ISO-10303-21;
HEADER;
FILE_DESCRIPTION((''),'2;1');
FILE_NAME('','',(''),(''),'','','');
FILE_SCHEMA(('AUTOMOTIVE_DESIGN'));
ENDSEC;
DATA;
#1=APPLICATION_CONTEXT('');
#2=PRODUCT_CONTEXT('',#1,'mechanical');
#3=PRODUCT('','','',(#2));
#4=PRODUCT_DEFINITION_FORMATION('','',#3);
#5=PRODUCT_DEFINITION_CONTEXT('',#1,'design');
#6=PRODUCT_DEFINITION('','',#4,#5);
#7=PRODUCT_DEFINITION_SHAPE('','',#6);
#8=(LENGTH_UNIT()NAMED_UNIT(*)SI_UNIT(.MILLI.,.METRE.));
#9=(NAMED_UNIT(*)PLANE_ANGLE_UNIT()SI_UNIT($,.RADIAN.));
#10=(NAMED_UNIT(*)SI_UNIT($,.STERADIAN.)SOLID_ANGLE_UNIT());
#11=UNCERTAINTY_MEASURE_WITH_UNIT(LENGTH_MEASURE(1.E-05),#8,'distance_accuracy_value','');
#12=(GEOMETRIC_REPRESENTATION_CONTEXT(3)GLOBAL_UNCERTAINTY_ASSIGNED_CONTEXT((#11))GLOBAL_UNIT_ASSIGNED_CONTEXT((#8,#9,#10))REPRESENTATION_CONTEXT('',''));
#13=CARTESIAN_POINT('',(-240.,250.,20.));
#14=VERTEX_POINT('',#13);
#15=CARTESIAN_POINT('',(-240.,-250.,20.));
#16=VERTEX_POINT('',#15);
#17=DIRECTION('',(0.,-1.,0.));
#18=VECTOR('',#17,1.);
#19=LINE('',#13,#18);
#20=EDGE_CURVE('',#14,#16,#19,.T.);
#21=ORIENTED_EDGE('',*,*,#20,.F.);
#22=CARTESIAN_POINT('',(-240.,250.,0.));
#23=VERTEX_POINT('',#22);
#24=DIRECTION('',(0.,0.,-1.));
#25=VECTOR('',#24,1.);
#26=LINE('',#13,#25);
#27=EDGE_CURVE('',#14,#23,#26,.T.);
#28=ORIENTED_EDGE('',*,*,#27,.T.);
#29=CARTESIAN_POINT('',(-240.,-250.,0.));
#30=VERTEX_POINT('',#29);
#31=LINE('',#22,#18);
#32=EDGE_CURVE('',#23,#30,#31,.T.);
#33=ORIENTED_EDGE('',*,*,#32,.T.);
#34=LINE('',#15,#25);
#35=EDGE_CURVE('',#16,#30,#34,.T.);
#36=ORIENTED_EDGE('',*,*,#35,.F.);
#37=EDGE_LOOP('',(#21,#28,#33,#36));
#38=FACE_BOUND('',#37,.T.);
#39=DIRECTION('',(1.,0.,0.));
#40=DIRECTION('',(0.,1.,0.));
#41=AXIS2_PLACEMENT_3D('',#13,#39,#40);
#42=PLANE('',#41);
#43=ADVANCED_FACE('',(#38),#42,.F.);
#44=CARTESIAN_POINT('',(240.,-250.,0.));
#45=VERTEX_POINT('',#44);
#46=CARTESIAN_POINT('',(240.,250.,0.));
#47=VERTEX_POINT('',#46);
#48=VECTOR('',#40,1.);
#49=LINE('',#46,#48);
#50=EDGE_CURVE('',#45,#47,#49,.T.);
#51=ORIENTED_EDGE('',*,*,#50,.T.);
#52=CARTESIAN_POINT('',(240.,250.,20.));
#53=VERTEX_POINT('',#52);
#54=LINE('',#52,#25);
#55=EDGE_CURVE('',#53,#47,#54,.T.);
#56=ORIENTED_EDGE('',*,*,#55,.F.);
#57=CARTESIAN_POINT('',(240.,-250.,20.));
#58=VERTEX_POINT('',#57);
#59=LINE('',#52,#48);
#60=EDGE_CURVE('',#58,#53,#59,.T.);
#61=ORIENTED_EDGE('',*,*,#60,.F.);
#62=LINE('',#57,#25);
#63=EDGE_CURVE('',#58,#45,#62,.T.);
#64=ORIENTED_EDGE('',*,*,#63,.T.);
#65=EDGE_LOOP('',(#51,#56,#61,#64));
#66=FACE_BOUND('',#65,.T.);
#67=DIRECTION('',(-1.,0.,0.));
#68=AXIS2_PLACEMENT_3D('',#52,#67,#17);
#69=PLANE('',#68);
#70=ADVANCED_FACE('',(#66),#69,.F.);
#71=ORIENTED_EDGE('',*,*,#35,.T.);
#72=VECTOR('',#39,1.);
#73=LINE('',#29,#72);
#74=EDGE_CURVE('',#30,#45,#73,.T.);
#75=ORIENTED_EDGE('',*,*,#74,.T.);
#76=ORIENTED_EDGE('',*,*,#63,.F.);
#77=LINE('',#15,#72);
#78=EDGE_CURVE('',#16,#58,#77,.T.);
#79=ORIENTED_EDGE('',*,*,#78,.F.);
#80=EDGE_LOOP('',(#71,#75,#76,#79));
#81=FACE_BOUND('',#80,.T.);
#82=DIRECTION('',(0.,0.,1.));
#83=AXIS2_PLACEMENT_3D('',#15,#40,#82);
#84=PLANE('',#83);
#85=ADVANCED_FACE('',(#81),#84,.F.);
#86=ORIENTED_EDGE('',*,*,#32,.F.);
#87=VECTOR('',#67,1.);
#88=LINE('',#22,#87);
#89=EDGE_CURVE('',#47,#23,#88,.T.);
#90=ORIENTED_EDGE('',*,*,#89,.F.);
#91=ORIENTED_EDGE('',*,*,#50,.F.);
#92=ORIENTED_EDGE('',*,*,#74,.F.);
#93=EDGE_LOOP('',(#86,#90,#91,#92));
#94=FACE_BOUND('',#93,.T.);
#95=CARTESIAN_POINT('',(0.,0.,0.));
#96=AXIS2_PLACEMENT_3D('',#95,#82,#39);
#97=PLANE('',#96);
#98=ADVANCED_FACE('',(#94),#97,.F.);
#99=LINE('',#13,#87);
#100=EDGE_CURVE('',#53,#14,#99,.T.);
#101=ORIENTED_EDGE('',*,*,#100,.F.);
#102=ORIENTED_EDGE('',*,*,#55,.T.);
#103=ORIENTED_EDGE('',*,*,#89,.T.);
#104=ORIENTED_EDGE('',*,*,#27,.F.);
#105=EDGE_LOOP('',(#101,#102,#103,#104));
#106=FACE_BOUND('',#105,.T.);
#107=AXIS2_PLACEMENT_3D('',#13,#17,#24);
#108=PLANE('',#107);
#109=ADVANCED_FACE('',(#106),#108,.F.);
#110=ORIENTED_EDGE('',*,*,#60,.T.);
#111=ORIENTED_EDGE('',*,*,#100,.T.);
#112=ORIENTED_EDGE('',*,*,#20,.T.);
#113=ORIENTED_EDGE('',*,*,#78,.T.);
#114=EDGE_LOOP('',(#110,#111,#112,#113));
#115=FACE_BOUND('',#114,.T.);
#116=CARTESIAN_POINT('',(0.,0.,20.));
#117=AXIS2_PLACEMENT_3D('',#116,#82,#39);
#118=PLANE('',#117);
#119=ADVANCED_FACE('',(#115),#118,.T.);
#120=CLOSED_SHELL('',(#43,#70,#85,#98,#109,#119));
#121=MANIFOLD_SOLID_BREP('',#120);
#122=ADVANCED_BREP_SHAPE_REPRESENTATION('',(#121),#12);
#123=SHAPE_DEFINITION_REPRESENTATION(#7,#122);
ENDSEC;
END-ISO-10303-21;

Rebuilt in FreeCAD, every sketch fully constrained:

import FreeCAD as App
import Part
import Sketcher
from FreeCAD import Vector
Q = App.Units.Quantity

doc = App.newDocument("Part")
body = doc.addObject("PartDesign::Body", "Body")

sketch1 = body.newObject("Sketcher::SketchObject", "Sketch")
sketch1.AttachmentSupport = (doc.getObject("XY_Plane"), [""])
sketch1.MapMode = "FlatFace"
sketch1.addGeometry([
    Part.LineSegment(Vector(-240, 250, 0), Vector(-240, -250, 0)),
    Part.LineSegment(Vector(-240, -250, 0), Vector(240, -250, 0)),
    Part.LineSegment(Vector(240, -250, 0), Vector(240, 250, 0)),
    Part.LineSegment(Vector(240, 250, 0), Vector(-240, 250, 0)),
], False)
sketch1.addConstraint([
    Sketcher.Constraint("Coincident", 0, 2, 1, 1),
    Sketcher.Constraint("Coincident", 1, 2, 2, 1),
    Sketcher.Constraint("Coincident", 2, 2, 3, 1),
    Sketcher.Constraint("Coincident", 3, 2, 0, 1),
    Sketcher.Constraint("Vertical", 0),
    Sketcher.Constraint("Horizontal", 1),
    Sketcher.Constraint("Vertical", 2),
    Sketcher.Constraint("Horizontal", 3),
    Sketcher.Constraint("Symmetric", 0, 2, 2, 2, -1, 1),
    Sketcher.Constraint("DistanceX", 1, 1, 1, 2, Q("480 mm")),
    Sketcher.Constraint("DistanceY", 0, 2, 0, 1, Q("500 mm")),
])
pad1 = body.newObject("PartDesign::Pad", "Pad")
pad1.Profile = sketch1
pad1.Length = 20

doc.recompute()
